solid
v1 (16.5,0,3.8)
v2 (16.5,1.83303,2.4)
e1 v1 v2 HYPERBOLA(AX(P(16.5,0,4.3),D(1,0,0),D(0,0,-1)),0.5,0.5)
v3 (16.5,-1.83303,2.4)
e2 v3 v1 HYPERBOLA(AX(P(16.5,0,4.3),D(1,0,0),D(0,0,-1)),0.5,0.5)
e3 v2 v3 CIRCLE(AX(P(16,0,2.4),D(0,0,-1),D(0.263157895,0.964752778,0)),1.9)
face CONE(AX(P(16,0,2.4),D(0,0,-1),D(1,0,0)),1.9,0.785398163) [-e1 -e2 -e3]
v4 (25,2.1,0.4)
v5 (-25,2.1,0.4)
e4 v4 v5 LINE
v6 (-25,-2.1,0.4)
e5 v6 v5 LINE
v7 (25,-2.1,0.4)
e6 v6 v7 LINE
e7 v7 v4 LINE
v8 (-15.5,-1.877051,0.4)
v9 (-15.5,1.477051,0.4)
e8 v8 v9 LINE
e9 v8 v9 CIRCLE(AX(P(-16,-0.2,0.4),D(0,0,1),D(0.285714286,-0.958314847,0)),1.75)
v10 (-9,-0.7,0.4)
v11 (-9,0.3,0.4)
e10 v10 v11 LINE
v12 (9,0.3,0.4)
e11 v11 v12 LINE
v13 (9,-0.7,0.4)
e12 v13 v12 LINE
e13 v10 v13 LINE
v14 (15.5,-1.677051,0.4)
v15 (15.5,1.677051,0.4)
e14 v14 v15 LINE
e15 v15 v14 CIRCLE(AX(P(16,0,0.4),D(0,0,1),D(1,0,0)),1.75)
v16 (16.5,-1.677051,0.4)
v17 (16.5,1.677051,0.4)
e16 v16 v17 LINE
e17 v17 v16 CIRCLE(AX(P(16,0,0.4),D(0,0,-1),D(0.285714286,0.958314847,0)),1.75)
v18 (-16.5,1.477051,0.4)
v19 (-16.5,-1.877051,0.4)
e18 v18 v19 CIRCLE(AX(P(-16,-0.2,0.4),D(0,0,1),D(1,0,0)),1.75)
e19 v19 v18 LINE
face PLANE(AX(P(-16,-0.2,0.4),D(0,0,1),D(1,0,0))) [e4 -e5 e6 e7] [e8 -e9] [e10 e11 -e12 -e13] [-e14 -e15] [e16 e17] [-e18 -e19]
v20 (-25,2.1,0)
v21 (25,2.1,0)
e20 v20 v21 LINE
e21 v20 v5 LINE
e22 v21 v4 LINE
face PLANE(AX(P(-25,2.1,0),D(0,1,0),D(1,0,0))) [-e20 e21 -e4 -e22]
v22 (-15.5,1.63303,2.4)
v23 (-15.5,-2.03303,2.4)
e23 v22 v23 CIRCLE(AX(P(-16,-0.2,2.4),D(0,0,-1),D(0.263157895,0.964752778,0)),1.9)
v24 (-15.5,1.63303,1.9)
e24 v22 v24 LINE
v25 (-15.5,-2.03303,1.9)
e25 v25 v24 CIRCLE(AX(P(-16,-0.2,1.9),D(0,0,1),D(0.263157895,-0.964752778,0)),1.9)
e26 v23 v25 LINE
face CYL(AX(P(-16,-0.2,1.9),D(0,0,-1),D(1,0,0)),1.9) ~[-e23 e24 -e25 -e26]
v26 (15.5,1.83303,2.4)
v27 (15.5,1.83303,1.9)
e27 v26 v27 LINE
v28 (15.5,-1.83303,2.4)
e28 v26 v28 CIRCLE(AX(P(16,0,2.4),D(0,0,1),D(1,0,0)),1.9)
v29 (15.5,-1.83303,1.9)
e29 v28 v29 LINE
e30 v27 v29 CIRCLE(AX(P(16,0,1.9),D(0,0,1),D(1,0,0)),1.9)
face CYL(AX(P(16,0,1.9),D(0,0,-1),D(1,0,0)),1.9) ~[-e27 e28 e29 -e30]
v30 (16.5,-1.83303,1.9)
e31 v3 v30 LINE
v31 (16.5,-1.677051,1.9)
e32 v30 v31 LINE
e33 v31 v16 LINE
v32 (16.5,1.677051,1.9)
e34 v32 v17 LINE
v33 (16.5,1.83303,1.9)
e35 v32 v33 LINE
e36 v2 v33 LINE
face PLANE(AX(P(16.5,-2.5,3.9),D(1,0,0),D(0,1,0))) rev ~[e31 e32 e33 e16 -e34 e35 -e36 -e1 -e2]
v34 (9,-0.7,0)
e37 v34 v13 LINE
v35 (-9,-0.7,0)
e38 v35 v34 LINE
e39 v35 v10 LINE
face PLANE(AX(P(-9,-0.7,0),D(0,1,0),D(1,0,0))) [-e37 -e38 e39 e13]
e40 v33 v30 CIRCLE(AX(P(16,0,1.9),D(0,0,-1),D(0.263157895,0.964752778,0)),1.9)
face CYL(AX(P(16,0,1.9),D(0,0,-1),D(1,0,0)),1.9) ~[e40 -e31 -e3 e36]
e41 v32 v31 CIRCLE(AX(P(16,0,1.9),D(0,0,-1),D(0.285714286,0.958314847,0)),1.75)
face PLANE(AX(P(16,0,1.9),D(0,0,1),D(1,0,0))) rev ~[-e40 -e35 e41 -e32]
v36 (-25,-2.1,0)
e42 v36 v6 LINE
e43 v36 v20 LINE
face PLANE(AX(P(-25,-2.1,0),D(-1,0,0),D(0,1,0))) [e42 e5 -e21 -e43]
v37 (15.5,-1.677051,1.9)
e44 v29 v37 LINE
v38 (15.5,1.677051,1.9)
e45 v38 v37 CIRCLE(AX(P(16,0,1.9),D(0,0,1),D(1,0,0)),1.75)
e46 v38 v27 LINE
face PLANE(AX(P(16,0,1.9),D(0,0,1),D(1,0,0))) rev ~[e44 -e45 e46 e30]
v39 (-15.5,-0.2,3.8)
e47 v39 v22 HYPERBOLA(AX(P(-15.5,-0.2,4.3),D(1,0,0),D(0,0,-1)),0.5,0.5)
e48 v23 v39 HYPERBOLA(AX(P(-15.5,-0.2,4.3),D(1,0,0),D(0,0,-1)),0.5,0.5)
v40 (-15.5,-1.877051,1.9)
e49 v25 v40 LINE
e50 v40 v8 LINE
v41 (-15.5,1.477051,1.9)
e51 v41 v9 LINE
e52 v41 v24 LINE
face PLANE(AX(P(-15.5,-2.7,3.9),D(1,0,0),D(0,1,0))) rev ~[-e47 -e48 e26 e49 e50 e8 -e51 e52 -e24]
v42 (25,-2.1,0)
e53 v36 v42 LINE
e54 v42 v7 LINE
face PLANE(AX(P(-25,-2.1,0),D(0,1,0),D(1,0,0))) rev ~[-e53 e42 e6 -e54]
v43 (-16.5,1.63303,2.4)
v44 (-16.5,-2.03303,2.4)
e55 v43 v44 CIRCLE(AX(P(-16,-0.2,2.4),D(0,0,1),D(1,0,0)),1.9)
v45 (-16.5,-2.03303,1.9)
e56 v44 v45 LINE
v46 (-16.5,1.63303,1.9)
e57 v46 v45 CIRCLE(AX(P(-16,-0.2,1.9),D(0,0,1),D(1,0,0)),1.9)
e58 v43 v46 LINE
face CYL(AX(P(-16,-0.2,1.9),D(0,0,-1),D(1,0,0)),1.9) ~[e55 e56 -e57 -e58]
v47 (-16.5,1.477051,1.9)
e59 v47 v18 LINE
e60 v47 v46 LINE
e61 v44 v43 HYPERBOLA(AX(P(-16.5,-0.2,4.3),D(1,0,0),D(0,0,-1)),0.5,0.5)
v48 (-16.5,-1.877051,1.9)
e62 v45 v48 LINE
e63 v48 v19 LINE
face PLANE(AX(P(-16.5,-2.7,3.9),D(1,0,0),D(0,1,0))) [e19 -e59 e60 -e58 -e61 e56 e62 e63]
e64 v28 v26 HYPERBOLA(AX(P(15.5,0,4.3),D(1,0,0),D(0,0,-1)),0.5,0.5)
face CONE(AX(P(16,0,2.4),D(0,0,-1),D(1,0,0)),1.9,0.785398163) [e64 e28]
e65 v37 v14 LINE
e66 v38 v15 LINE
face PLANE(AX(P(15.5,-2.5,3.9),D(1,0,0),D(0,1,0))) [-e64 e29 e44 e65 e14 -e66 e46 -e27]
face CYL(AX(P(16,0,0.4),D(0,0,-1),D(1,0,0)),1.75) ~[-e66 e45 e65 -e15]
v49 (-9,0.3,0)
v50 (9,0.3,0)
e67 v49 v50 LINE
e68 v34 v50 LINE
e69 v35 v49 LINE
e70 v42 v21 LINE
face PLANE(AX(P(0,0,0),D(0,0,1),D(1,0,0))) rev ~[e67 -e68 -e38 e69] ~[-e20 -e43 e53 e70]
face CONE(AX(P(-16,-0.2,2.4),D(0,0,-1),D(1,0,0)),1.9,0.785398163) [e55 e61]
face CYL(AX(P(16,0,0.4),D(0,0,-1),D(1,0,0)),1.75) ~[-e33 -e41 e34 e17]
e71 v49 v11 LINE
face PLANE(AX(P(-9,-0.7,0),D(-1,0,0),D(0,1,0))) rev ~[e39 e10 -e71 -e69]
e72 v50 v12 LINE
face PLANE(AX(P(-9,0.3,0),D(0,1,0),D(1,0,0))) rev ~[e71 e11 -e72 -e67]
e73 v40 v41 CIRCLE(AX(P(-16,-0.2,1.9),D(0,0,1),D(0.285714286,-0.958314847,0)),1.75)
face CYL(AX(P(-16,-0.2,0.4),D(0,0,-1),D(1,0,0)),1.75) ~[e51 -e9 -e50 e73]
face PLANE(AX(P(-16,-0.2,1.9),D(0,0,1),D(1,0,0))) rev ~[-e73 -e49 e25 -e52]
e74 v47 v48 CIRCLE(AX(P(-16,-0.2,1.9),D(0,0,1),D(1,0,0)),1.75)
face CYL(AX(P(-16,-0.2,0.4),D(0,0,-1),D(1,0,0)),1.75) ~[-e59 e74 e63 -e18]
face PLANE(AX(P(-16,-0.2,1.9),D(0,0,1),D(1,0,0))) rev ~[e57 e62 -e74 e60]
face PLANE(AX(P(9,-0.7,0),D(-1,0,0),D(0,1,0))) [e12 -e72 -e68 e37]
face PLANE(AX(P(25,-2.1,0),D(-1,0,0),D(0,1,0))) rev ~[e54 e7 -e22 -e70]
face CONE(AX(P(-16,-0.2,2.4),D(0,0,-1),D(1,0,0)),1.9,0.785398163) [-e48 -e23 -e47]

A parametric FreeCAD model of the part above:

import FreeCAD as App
import Part
import Sketcher
Q = App.Units.Quantity


def edges_at(feature, points):
    """Names of the edges that pass closest to the given points."""
    edges = feature.Shape.Edges
    near = lambda p: min(range(len(edges)), key=lambda i: edges[i].distToShape(Part.Vertex(*p))[0])
    return sorted({f"Edge{near(p) + 1}" for p in points})


def add_polygon(sketch, points):
    """Adds a closed chain of lines whose ends are joined by coincident constraints."""
    first, n = sketch.GeometryCount, len(points)
    for a, b in zip(points, points[1:] + points[:1]):
        sketch.addGeometry(Part.LineSegment(App.Vector(*a, 0), App.Vector(*b, 0)), False)
    for i in range(n):
        sketch.addConstraint(Sketcher.Constraint("Coincident", first + i, 2, first + (i + 1) % n, 1))

doc = App.newDocument("Part")
body = doc.addObject("PartDesign::Body", "Body")

sketch1 = doc.addObject("Sketcher::SketchObject", "Sketch")
body.addObject(sketch1)
sketch1.AttachmentSupport = (doc.XY_Plane, [""])
sketch1.MapMode = "FlatFace"
add_polygon(sketch1, [(-25, 2.1), (-25, -2.1), (25, -2.1), (25, 2.1)])
add_polygon(sketch1, [(9, -0.7), (-9, -0.7), (-9, 0.3), (9, 0.3)])
sketch1.addConstraint([
    Sketcher.Constraint("Vertical", 0),
    Sketcher.Constraint("Horizontal", 1),
    Sketcher.Constraint("Vertical", 2),
    Sketcher.Constraint("Horizontal", 3),
    Sketcher.Constraint("Horizontal", 4),
    Sketcher.Constraint("Vertical", 5),
    Sketcher.Constraint("Horizontal", 6),
    Sketcher.Constraint("Vertical", 7),
    Sketcher.Constraint("Symmetric", 0, 2, 2, 2, -1, 1),
    Sketcher.Constraint("DistanceX", 1, 1, 1, 2, Q("50 mm")),
    Sketcher.Constraint("DistanceX", 4, 2, 4, 1, Q("18 mm")),
    Sketcher.Constraint("DistanceY", 5, 1, 5, 2, Q("1 mm")),
    Sketcher.Constraint("DistanceY", 0, 2, 0, 1, Q("4.2 mm")),
    Sketcher.Constraint("DistanceX", 4, 2, -1, 1, Q("9 mm")),
    Sketcher.Constraint("DistanceY", 4, 2, -1, 1, Q("0.7 mm")),
])
pad1 = doc.addObject("PartDesign::Pad", "Pad")
body.addObject(pad1)
pad1.Profile = sketch1
pad1.Length = 0.4

sketch2 = doc.addObject("Sketcher::SketchObject", "Sketch001")
body.addObject(sketch2)
sketch2.AttachmentSupport = (doc.XY_Plane, [""])
sketch2.MapMode = "FlatFace"
sketch2.AttachmentOffset = App.Placement(App.Vector(0, 0, 0.4), App.Rotation())
sketch2.addGeometry([
    Part.Circle(App.Vector(-16, -0.2, 0), App.Vector(0, 0, 1), 1.8),
    Part.Circle(App.Vector(16, 0, 0), App.Vector(0, 0, 1), 1.8),
], False)
sketch2.addConstraint([
    Sketcher.Constraint("Equal", 0, 1),
    Sketcher.Constraint("PointOnObject", 1, 3, -1),
    Sketcher.Constraint("Diameter", 0, Q("3.5 mm")),
    Sketcher.Constraint("DistanceX", 0, 3, -1, 1, Q("16 mm")),
    Sketcher.Constraint("DistanceX", -1, 1, 1, 3, Q("16 mm")),
    Sketcher.Constraint("DistanceY", 0, 3, -1, 1, Q("0.2 mm")),
])
pad2 = doc.addObject("PartDesign::Pad", "Pad001")
body.addObject(pad2)
pad2.Profile = sketch2
pad2.Length = 1.5

sketch3 = doc.addObject("Sketcher::SketchObject", "Sketch002")
body.addObject(sketch3)
sketch3.AttachmentSupport = (doc.XY_Plane, [""])
sketch3.MapMode = "FlatFace"
sketch3.AttachmentOffset = App.Placement(App.Vector(0, 0, 1.9), App.Rotation())
sketch3.addGeometry([
    Part.Circle(App.Vector(-16, -0.2, 0), App.Vector(0, 0, 1), 1.9),
    Part.Circle(App.Vector(16, 0, 0), App.Vector(0, 0, 1), 1.9),
], False)
sketch3.addConstraint([
    Sketcher.Constraint("Equal", 0, 1),
    Sketcher.Constraint("PointOnObject", 1, 3, -1),
    Sketcher.Constraint("Diameter", 0, Q("3.8 mm")),
    Sketcher.Constraint("DistanceX", 0, 3, -1, 1, Q("16 mm")),
    Sketcher.Constraint("DistanceX", -1, 1, 1, 3, Q("16 mm")),
    Sketcher.Constraint("DistanceY", 0, 3, -1, 1, Q("0.2 mm")),
])
pad3 = doc.addObject("PartDesign::Pad", "Pad002")
body.addObject(pad3)
pad3.Profile = sketch3
pad3.Length = 2
doc.recompute()

chamfer = doc.addObject("PartDesign::Chamfer", "Chamfer")
body.addObject(chamfer)
chamfer.Base = (pad3, edges_at(pad3, [(-17.9, -0.2, 3.9), (14.1, 0, 3.9)]))
chamfer.Size = 1.5

sketch4 = doc.addObject("Sketcher::SketchObject", "Sketch003")
body.addObject(sketch4)
sketch4.AttachmentSupport = (doc.XY_Plane, [""])
sketch4.MapMode = "FlatFace"
sketch4.AttachmentOffset = App.Placement(App.Vector(0, 0, 3.9), App.Rotation())
add_polygon(sketch4, [(-16.5, 2.3), (-16.5, -2.7), (-15.5, -2.7), (-15.5, 2.3)])
add_polygon(sketch4, [(15.5, 2.5), (15.5, -2.5), (16.5, -2.5), (16.5, 2.5)])
sketch4.addConstraint([
    Sketcher.Constraint("Vertical", 0),
    Sketcher.Constraint("Horizontal", 1),
    Sketcher.Constraint("Vertical", 2),
    Sketcher.Constraint("Horizontal", 3),
    Sketcher.Constraint("Vertical", 4),
    Sketcher.Constraint("Horizontal", 5),
    Sketcher.Constraint("Vertical", 6),
    Sketcher.Constraint("Horizontal", 7),
    Sketcher.Constraint("Equal", 3, 5),
    Sketcher.Constraint("Equal", 2, 4),
    Sketcher.Constraint("DistanceX", 1, 1, 1, 2, Q("1 mm")),
    Sketcher.Constraint("DistanceY", 0, 2, 0, 1, Q("5 mm")),
    Sketcher.Constraint("DistanceX", 1, 2, 4, 2, Q("31 mm")),
    Sketcher.Constraint("DistanceX", 0, 2, -1, 1, Q("16.5 mm")),
    Sketcher.Constraint("DistanceY", 0, 2, -1, 1, Q("2.7 mm")),
    Sketcher.Constraint("DistanceY", 4, 2, -1, 1, Q("2.5 mm")),
])
pocket1 = doc.addObject("PartDesign::Pocket", "Pocket")
body.addObject(pocket1)
pocket1.Profile = sketch4
pocket1.Length = 3.5

doc.recompute()
